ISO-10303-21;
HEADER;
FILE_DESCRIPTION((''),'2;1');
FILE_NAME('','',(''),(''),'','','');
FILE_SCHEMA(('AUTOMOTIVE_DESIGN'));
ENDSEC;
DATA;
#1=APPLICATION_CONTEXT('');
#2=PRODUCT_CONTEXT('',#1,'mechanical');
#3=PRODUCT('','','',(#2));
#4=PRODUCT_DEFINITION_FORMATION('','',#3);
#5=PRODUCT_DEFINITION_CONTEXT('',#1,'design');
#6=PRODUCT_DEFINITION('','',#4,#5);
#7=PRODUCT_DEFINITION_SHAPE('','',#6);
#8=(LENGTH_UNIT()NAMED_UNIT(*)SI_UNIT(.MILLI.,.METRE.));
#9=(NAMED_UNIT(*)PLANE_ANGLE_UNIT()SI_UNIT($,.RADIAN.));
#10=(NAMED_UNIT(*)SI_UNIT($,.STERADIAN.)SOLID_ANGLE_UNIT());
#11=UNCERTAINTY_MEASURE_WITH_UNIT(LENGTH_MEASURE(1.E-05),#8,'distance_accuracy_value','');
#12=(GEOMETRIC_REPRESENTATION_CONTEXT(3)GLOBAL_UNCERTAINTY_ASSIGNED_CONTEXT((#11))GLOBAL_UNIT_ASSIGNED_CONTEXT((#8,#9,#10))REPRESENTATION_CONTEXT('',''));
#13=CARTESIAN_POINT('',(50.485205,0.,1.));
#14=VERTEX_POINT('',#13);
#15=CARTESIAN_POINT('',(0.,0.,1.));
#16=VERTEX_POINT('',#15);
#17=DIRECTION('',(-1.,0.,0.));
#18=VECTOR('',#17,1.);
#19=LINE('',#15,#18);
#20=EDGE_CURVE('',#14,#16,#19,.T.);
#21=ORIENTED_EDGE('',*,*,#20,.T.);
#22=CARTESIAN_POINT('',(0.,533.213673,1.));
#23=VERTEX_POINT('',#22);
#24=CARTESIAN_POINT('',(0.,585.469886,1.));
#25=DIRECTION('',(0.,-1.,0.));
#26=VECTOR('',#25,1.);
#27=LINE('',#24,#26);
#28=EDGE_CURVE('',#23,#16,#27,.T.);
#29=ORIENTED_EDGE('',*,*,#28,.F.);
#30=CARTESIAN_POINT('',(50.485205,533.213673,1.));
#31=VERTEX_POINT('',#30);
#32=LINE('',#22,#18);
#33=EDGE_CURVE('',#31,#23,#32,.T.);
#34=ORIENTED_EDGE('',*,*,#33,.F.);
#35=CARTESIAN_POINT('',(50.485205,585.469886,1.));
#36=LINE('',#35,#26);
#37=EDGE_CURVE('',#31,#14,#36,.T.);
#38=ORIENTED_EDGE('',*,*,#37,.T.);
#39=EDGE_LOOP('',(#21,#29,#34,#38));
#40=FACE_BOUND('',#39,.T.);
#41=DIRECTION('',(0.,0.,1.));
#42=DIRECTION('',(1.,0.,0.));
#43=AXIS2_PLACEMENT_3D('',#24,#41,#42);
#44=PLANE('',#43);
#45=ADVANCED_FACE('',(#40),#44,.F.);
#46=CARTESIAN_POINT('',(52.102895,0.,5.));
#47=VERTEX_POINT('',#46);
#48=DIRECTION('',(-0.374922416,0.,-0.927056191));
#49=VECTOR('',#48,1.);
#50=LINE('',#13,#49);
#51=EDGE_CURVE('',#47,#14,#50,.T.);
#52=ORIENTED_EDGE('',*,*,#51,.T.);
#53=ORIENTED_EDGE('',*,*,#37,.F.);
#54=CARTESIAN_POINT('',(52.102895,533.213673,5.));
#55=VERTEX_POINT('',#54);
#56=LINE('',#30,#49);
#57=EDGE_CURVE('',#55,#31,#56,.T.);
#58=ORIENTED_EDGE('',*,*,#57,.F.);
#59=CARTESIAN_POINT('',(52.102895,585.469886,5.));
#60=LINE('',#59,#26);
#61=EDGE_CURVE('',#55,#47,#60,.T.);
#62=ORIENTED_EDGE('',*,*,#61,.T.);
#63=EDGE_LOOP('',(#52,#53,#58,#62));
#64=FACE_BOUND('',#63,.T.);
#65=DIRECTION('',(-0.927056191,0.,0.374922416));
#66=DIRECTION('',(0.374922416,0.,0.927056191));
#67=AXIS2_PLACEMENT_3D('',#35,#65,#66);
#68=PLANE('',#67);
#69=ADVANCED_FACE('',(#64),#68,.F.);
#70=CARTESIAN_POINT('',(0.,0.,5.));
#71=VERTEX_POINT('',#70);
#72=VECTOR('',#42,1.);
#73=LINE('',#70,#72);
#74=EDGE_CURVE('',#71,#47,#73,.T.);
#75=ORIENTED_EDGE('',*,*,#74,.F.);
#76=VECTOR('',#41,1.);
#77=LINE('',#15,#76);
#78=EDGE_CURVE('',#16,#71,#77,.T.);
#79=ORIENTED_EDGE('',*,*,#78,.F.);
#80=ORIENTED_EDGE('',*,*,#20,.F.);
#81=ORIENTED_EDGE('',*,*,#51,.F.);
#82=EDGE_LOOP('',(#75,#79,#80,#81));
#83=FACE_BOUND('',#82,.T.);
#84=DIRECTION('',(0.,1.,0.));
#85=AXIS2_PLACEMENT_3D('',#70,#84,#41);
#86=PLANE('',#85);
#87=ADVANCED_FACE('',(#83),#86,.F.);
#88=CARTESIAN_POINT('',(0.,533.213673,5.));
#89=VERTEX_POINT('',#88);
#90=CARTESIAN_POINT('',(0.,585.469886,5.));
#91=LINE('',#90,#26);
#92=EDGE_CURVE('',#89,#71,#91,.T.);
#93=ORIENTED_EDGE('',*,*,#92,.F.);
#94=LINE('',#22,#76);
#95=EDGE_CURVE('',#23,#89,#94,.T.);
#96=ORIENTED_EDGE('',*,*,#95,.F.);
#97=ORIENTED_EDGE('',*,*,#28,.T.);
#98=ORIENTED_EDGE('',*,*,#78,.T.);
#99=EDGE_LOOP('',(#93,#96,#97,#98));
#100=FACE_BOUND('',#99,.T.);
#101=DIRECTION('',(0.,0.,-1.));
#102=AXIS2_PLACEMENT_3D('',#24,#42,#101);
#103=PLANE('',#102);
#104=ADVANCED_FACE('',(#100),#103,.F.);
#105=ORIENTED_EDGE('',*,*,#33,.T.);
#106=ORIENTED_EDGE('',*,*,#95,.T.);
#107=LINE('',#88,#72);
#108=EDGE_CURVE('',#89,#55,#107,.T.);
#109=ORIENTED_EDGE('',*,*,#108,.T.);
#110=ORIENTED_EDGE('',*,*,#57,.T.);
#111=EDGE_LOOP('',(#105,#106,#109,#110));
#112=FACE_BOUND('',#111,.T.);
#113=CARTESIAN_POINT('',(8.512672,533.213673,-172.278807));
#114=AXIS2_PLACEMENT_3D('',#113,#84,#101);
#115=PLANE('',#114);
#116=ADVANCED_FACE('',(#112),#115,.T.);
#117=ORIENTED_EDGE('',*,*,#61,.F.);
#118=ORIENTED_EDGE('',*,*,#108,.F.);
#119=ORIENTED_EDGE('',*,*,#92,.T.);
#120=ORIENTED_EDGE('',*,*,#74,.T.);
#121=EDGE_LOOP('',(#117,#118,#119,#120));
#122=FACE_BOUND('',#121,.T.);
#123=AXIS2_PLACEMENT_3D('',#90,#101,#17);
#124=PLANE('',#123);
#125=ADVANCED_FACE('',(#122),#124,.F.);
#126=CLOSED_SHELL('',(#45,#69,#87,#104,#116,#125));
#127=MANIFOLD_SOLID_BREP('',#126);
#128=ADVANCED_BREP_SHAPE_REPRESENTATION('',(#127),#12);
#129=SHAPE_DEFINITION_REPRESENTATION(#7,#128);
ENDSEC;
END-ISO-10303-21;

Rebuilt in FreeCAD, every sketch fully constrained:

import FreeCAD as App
import Part
import Sketcher
Q = App.Units.Quantity

doc = App.newDocument("Part")
body = doc.addObject("PartDesign::Body", "Body")

sketch1 = doc.addObject("Sketcher::SketchObject", "Sketch")
body.addObject(sketch1)
sketch1.AttachmentSupport = (doc.XZ_Plane, [""])
sketch1.MapMode = "FlatFace"
sketch1.addGeometry(Part.LineSegment(App.Vector(50.5, 1, 0), App.Vector(0, 1, 0)), False)
sketch1.addGeometry(Part.LineSegment(App.Vector(0, 1, 0), App.Vector(0, 5, 0)), False)
sketch1.addGeometry(Part.LineSegment(App.Vector(0, 5, 0), App.Vector(52.1, 5, 0)), False)
sketch1.addGeometry(Part.LineSegment(App.Vector(52.1, 5, 0), App.Vector(50.5, 1, 0)), False)
sketch1.addConstraint(Sketcher.Constraint("Coincident", 0, 2, 1, 1))
sketch1.addConstraint(Sketcher.Constraint("Coincident", 1, 2, 2, 1))
sketch1.addConstraint(Sketcher.Constraint("Coincident", 2, 2, 3, 1))
sketch1.addConstraint(Sketcher.Constraint("Coincident", 3, 2, 0, 1))
sketch1.addConstraint(Sketcher.Constraint("Horizontal", 0))
sketch1.addConstraint(Sketcher.Constraint("Vertical", 1))
sketch1.addConstraint(Sketcher.Constraint("Horizontal", 2))
sketch1.addConstraint(Sketcher.Constraint("PointOnObject", 0, 2, -2))
sketch1.addConstraint(Sketcher.Constraint("DistanceY", 1, 1, 1, 2, Q("4 mm")))
sketch1.addConstraint(Sketcher.Constraint("DistanceY", -1, 1, 0, 2, Q("1 mm")))
sketch1.addConstraint(Sketcher.Constraint("DistanceX", 0, 2, 0, 1, Q("50.485205 mm")))
sketch1.addConstraint(Sketcher.Constraint("DistanceX", 2, 1, 2, 2, Q("52.102895 mm")))
pad1 = doc.addObject("PartDesign::Pad", "Pad")
body.addObject(pad1)
pad1.Profile = sketch1
pad1.Length = 533.213673
pad1.Reversed = True

doc.recompute()
